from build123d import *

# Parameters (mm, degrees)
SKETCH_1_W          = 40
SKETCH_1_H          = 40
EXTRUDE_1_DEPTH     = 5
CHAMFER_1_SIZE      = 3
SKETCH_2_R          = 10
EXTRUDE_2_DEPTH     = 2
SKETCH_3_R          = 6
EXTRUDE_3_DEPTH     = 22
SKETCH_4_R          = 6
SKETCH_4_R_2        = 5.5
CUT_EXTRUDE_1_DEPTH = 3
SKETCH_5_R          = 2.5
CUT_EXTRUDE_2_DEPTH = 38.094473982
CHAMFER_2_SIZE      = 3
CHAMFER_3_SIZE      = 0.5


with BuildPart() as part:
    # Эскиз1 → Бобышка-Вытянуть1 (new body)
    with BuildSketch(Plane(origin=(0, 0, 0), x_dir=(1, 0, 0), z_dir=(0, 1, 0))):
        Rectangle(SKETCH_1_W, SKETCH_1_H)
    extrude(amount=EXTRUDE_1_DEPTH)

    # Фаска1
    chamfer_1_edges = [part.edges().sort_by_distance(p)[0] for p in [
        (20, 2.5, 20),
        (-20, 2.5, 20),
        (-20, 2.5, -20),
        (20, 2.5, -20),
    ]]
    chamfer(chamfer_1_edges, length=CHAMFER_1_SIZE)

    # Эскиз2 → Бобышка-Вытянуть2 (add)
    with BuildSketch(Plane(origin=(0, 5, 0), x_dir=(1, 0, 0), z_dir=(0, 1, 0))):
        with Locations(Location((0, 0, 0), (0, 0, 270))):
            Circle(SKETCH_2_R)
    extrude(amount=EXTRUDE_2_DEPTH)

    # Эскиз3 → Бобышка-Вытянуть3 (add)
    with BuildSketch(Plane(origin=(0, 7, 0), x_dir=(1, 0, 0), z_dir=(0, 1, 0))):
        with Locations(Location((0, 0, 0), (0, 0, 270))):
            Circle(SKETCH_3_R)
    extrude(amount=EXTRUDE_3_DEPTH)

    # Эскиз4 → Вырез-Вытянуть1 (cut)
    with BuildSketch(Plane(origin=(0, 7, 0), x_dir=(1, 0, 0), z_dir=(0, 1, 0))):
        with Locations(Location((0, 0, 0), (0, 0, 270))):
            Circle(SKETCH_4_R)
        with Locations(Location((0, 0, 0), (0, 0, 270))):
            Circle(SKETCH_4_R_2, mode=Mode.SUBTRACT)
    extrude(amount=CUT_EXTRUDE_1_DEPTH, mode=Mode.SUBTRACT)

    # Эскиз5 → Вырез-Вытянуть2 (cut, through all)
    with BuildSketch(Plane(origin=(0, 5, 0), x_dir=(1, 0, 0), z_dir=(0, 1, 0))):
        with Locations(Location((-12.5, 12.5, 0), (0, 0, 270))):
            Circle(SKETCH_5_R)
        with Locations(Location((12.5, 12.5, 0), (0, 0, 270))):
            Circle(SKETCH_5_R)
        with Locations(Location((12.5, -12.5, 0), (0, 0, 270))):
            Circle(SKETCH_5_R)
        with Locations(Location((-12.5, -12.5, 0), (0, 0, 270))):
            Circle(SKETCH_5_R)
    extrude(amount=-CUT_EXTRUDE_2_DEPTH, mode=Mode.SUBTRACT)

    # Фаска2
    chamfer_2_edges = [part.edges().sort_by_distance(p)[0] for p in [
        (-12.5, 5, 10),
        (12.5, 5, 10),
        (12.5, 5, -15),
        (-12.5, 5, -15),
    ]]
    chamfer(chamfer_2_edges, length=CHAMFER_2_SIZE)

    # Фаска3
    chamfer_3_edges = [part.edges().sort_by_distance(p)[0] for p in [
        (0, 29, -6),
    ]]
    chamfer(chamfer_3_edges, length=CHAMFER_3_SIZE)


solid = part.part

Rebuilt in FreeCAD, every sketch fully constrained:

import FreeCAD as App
import Part
import Sketcher

V = App.Vector
Q = App.Units.Quantity


def edges_at(feature, points):
    """Names of the edges that pass closest to the given points."""
    edges = feature.Shape.Edges
    near = lambda p: min(range(len(edges)), key=lambda i: edges[i].distToShape(Part.Vertex(*p))[0])
    return sorted({f"Edge{near(p) + 1}" for p in points})

doc = App.newDocument("Part")
body = doc.addObject("PartDesign::Body", "Body")

sketch1 = body.newObject("Sketcher::SketchObject", "Sketch")
sketch1.AttachmentSupport = (doc.getObject("XZ_Plane"), [""])
sketch1.MapMode = "FlatFace"
sketch1.addGeometry([
    Part.LineSegment(V(-20, -20, 0), V(-20, 20, 0)),
    Part.LineSegment(V(-20, 20, 0), V(20, 20, 0)),
    Part.LineSegment(V(20, 20, 0), V(20, -20, 0)),
    Part.LineSegment(V(20, -20, 0), V(-20, -20, 0)),
], False)
sketch1.addConstraint([
    Sketcher.Constraint("Coincident", 0, 2, 1, 1),
    Sketcher.Constraint("Coincident", 1, 2, 2, 1),
    Sketcher.Constraint("Coincident", 2, 2, 3, 1),
    Sketcher.Constraint("Coincident", 3, 2, 0, 1),
    Sketcher.Constraint("Vertical", 0),
    Sketcher.Constraint("Horizontal", 1),
    Sketcher.Constraint("Vertical", 2),
    Sketcher.Constraint("Horizontal", 3),
    Sketcher.Constraint("Symmetric", 0, 2, 2, 2, -1, 1),
    Sketcher.Constraint("Equal", 3, 0),
    Sketcher.Constraint("DistanceX", 1, 1, 1, 2, Q("40 mm")),
])
pad1 = body.newObject("PartDesign::Pad", "Pad")
pad1.Profile = sketch1
pad1.Length = 5
pad1.Reversed = True
doc.recompute()

chamfer = body.newObject("PartDesign::Chamfer", "Chamfer")
chamfer.Base = (pad1, edges_at(pad1, [
    (20, 2.5, 20),
    (-20, 2.5, 20),
    (-20, 2.5, -20),
    (20, 2.5, -20),
]))
chamfer.Size = 3

sketch2 = body.newObject("Sketcher::SketchObject", "Sketch001")
sketch2.AttachmentSupport = (doc.getObject("XZ_Plane"), [""])
sketch2.MapMode = "FlatFace"
sketch2.AttachmentOffset = App.Placement(V(0, 0, -5), App.Rotation())
sketch2.addGeometry(Part.Circle(V(0, 0, 0), V(0, 0, 1), 10), False)
sketch2.addConstraint([
    Sketcher.Constraint("Coincident", 0, 3, -1, 1),
    Sketcher.Constraint("Diameter", 0, Q("20 mm")),
])
pad2 = body.newObject("PartDesign::Pad", "Pad001")
pad2.Profile = sketch2
pad2.Length = 2
pad2.Reversed = True

sketch3 = body.newObject("Sketcher::SketchObject", "Sketch002")
sketch3.AttachmentSupport = (doc.getObject("XZ_Plane"), [""])
sketch3.MapMode = "FlatFace"
sketch3.AttachmentOffset = App.Placement(V(0, 0, -7), App.Rotation())
sketch3.addGeometry(Part.Circle(V(0, 0, 0), V(0, 0, 1), 6), False)
sketch3.addConstraint([
    Sketcher.Constraint("Coincident", 0, 3, -1, 1),
    Sketcher.Constraint("Diameter", 0, Q("12 mm")),
])
pad3 = body.newObject("PartDesign::Pad", "Pad002")
pad3.Profile = sketch3
pad3.Length = 22
pad3.Reversed = True

sketch4 = body.newObject("Sketcher::SketchObject", "Sketch003")
sketch4.AttachmentSupport = (doc.getObject("XZ_Plane"), [""])
sketch4.MapMode = "FlatFace"
sketch4.AttachmentOffset = App.Placement(V(0, 0, -7), App.Rotation())
sketch4.addGeometry([
    Part.Circle(V(0, 0, 0), V(0, 0, 1), 6),
    Part.Circle(V(0, 0, 0), V(0, 0, 1), 5.5),
], False)
sketch4.addConstraint([
    Sketcher.Constraint("Coincident", 0, 3, -1, 1),
    Sketcher.Constraint("Coincident", 1, 3, -1, 1),
    Sketcher.Constraint("Diameter", 0, Q("12 mm")),
    Sketcher.Constraint("Diameter", 1, Q("11 mm")),
])
pocket1 = body.newObject("PartDesign::Pocket", "Pocket")
pocket1.Profile = sketch4
pocket1.Length = 3

sketch5 = body.newObject("Sketcher::SketchObject", "Sketch004")
sketch5.AttachmentSupport = (doc.getObject("XZ_Plane"), [""])
sketch5.MapMode = "FlatFace"
sketch5.AttachmentOffset = App.Placement(V(0, 0, -5), App.Rotation())
sketch5.addGeometry([
    Part.Circle(V(-12.5, -12.5, 0), V(0, 0, 1), 2.5),
    Part.Circle(V(12.5, -12.5, 0), V(0, 0, 1), 2.5),
    Part.Circle(V(12.5, 12.5, 0), V(0, 0, 1), 2.5),
    Part.Circle(V(-12.5, 12.5, 0), V(0, 0, 1), 2.5),
], False)
sketch5.addConstraint([
    Sketcher.Constraint("Equal", 0, 1),
    Sketcher.Constraint("Equal", 1, 2),
    Sketcher.Constraint("Equal", 2, 3),
    Sketcher.Constraint("Symmetric", 0, 3, 2, 3, -1, 1),
    Sketcher.Constraint("Symmetric", 1, 3, 3, 3, -1, 1),
    Sketcher.Constraint("Symmetric", 0, 3, 1, 3, -2),
    Sketcher.Constraint("Diameter", 0, Q("5 mm")),
    Sketcher.Constraint("DistanceX", 0, 3, 1, 3, Q("25 mm")),
    Sketcher.Constraint("DistanceY", 1, 3, 2, 3, Q("25 mm")),
])
pocket2 = body.newObject("PartDesign::Pocket", "Pocket001")
pocket2.Profile = sketch5
pocket2.Type = "ThroughAll"
pocket2.Reversed = True
doc.recompute()

chamfer2 = body.newObject("PartDesign::Chamfer", "Chamfer001")
chamfer2.Base = (pocket2, edges_at(pocket2, [
    (-12.5, 5, 10),
    (12.5, 5, 10),
    (12.5, 5, -15),
    (-12.5, 5, -15),
]))
chamfer2.Size = 3
doc.recompute()

chamfer3 = body.newObject("PartDesign::Chamfer", "Chamfer002")
chamfer3.Base = (chamfer2, edges_at(chamfer2, [(0, 29, -6)]))
chamfer3.Size = 0.5

doc.recompute()
